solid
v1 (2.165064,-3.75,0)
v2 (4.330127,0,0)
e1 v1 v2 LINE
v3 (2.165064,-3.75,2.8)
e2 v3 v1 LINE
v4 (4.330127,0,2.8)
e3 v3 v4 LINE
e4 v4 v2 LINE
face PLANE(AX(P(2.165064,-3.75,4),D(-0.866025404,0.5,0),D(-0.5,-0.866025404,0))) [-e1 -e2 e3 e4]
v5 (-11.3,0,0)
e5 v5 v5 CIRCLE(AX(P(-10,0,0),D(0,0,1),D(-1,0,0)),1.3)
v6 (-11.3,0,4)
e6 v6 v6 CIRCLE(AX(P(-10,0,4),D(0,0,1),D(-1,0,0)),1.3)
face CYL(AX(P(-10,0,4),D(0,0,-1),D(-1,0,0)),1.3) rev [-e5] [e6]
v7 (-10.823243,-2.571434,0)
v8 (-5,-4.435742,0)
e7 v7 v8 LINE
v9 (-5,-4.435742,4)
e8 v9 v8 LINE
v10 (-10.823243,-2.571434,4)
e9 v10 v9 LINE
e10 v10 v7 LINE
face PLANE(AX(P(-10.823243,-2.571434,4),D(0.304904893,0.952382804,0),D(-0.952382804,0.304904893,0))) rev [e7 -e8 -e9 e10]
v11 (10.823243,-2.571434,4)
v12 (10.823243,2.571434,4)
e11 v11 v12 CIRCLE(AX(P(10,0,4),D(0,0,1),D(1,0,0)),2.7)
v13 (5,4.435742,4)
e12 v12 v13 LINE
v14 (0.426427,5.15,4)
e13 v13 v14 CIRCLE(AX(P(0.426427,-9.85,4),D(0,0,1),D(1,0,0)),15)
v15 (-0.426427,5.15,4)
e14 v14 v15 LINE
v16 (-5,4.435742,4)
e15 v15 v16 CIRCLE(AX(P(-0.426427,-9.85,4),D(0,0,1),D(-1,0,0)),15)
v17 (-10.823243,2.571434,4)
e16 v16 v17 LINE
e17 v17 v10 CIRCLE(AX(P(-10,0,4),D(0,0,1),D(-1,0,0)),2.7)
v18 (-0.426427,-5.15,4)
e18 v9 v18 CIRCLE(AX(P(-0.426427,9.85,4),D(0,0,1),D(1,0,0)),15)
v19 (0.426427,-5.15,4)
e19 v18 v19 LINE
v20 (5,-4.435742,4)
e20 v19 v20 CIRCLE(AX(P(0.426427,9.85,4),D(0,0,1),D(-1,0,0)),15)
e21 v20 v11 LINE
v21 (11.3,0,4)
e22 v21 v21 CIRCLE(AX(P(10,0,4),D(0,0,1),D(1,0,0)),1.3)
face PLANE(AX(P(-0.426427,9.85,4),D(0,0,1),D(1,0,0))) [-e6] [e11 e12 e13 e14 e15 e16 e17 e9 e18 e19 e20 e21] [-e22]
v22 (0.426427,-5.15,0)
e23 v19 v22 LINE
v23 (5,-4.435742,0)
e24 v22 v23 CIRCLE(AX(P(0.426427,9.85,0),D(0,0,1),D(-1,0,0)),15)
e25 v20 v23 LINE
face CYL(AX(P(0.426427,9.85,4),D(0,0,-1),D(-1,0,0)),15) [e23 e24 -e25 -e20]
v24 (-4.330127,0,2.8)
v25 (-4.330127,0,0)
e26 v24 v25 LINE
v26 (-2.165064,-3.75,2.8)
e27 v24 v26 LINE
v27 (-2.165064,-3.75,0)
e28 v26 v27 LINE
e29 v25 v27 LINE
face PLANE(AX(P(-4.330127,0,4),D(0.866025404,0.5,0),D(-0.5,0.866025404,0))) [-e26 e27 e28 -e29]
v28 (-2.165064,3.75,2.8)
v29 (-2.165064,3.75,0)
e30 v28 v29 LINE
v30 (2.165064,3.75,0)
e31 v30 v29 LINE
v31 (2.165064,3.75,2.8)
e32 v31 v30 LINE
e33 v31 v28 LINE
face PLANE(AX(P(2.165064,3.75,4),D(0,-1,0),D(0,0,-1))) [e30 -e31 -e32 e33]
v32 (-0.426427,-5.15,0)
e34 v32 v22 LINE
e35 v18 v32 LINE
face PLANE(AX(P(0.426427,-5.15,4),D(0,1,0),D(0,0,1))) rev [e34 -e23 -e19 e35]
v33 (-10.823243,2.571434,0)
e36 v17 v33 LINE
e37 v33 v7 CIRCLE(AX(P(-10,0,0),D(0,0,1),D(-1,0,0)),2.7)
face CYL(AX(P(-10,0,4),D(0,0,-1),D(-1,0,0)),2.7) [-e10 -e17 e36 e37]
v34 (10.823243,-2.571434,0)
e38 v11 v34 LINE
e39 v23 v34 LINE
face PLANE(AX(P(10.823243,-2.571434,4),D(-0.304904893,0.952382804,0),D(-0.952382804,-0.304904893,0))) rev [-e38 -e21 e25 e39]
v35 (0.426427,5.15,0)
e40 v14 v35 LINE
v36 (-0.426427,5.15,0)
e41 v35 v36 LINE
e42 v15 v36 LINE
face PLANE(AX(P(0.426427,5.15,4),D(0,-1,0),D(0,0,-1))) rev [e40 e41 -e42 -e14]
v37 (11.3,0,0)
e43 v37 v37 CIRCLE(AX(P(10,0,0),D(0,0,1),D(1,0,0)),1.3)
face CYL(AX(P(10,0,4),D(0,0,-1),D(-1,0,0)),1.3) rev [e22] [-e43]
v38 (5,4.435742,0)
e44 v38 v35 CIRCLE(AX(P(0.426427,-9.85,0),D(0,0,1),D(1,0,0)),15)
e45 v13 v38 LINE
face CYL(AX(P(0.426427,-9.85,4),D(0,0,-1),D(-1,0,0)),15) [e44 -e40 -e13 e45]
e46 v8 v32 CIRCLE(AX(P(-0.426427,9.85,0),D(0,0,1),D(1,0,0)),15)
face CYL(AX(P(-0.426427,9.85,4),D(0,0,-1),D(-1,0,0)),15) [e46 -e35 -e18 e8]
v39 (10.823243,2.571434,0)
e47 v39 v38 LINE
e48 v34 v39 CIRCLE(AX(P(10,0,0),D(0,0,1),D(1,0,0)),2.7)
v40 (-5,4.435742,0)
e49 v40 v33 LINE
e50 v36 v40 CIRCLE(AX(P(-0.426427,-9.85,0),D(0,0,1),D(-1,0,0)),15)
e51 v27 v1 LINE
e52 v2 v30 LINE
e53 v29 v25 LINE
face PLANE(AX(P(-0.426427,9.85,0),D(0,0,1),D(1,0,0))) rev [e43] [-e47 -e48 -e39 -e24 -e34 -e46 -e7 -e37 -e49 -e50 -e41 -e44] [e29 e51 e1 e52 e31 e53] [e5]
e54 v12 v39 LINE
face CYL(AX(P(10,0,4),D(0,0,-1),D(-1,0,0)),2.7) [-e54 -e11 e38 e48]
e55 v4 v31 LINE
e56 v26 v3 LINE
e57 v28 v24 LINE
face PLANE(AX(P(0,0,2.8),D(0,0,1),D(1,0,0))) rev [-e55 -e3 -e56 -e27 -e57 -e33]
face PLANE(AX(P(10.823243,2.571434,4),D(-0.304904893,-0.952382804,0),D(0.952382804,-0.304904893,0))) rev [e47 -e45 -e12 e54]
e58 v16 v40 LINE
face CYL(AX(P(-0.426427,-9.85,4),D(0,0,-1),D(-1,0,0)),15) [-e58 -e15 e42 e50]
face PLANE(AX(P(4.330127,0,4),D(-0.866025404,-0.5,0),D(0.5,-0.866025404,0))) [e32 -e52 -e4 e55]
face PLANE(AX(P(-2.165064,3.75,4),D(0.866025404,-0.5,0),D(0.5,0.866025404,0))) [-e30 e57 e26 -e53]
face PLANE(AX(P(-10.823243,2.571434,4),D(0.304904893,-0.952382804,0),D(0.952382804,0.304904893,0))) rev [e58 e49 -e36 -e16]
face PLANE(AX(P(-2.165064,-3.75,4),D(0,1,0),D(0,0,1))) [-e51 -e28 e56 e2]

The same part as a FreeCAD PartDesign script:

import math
import FreeCAD as App
import Part
import Sketcher

V = App.Vector
Q = App.Units.Quantity


def add_polygon(sketch, points):
    """Adds a closed chain of lines whose ends are joined by coincident constraints."""
    first, n = sketch.GeometryCount, len(points)
    for a, b in zip(points, points[1:] + points[:1]):
        sketch.addGeometry(Part.LineSegment(App.Vector(*a, 0), App.Vector(*b, 0)), False)
    for i in range(n):
        sketch.addConstraint(Sketcher.Constraint("Coincident", first + i, 2, first + (i + 1) % n, 1))

doc = App.newDocument("Part")
body = doc.addObject("PartDesign::Body", "Body")

sketch1 = body.newObject("Sketcher::SketchObject", "Sketch")
sketch1.AttachmentSupport = (doc.getObject("XY_Plane"), [""])
sketch1.MapMode = "FlatFace"
sketch1.addGeometry(Part.LineSegment(V(10.8, 2.6, 0), V(5, 4.4, 0)), False)
sketch1.addGeometry(Part.ArcOfCircle(Part.Circle(V(0.4, -9.8, 0), V(0, 0, 1), 15), math.radians(72.25), math.radians(90)), False)
sketch1.addGeometry(Part.LineSegment(V(0.4, 5.2, 0), V(-0.4, 5.2, 0)), False)
sketch1.addGeometry(Part.ArcOfCircle(Part.Circle(V(-0.4, -9.8, 0), V(0, 0, 1), 15), math.radians(90), math.radians(107.75)), False)
sketch1.addGeometry(Part.LineSegment(V(-5, 4.4, 0), V(-10.8, 2.6, 0)), False)
sketch1.addGeometry(Part.ArcOfCircle(Part.Circle(V(-10, 0, 0), V(0, 0, 1), 2.7), math.radians(108), math.radians(252)), False)
sketch1.addGeometry(Part.LineSegment(V(-10.8, -2.6, 0), V(-5, -4.4, 0)), False)
sketch1.addGeometry(Part.ArcOfCircle(Part.Circle(V(-0.4, 9.8, 0), V(0, 0, 1), 15), math.radians(-107.75), math.radians(-90)), False)
sketch1.addGeometry(Part.LineSegment(V(-0.4, -5.2, 0), V(0.4, -5.2, 0)), False)
sketch1.addGeometry(Part.ArcOfCircle(Part.Circle(V(0.4, 9.8, 0), V(0, 0, 1), 15), math.radians(-90), math.radians(-72.25)), False)
sketch1.addGeometry(Part.LineSegment(V(5, -4.4, 0), V(10.8, -2.6, 0)), False)
sketch1.addGeometry(Part.ArcOfCircle(Part.Circle(V(10, 0, 0), V(0, 0, 1), 2.7), math.radians(-72), math.radians(72)), False)
sketch1.addGeometry(Part.Circle(V(-10, 0, 0), V(0, 0, 1), 1.3), False)
add_polygon(sketch1, [(-2.2, 3.8), (2.2, 3.8), (4.3, 0), (2.2, -3.8), (-2.2, -3.8), (-4.3, 0)])
sketch1.addGeometry(Part.Circle(V(10, 0, 0), V(0, 0, 1), 1.3), False)
sketch1.addConstraint([
    Sketcher.Constraint("Tangent", 0, 2, 1, 1),
    Sketcher.Constraint("Tangent", 1, 2, 2, 1),
    Sketcher.Constraint("Tangent", 2, 2, 3, 1),
    Sketcher.Constraint("Tangent", 3, 2, 4, 1),
    Sketcher.Constraint("Tangent", 4, 2, 5, 1),
    Sketcher.Constraint("Tangent", 5, 2, 6, 1),
    Sketcher.Constraint("Tangent", 6, 2, 7, 1),
    Sketcher.Constraint("Tangent", 7, 2, 8, 1),
    Sketcher.Constraint("Tangent", 8, 2, 9, 1),
    Sketcher.Constraint("Tangent", 9, 2, 10, 1),
    Sketcher.Constraint("Tangent", 10, 2, 11, 1),
    Sketcher.Constraint("Tangent", 11, 2, 0, 1),
    Sketcher.Constraint("Horizontal", 2),
    Sketcher.Constraint("Horizontal", 8),
    Sketcher.Constraint("Horizontal", 13),
    Sketcher.Constraint("Horizontal", 16),
    Sketcher.Constraint("Coincident", 12, 3, 5, 3),
    Sketcher.Constraint("Coincident", 19, 3, 11, 3),
    Sketcher.Constraint("Equal", 1, 3),
    Sketcher.Constraint("Equal", 3, 7),
    Sketcher.Constraint("Equal", 7, 9),
    Sketcher.Constraint("Equal", 5, 11),
    Sketcher.Constraint("Equal", 12, 19),
    Sketcher.Constraint("Symmetric", 1, 3, 7, 3, -1, 1),
    Sketcher.Constraint("Symmetric", 5, 3, 11, 3, -1, 1),
    Sketcher.Constraint("Symmetric", 13, 2, 16, 2, -1, 1),
    Sketcher.Constraint("Symmetric", 14, 2, 17, 2, -1, 1),
    Sketcher.Constraint("Symmetric", 0, 2, 3, 2, -2),
    Sketcher.Constraint("PointOnObject", 14, 2, -1),
    Sketcher.Constraint("Parallel", 4, 10),
    Sketcher.Constraint("Parallel", 15, 18),
    Sketcher.Constraint("Vertical", 13, 2, 15, 2),
    Sketcher.Constraint("Radius", 1, Q("15 mm")),
    Sketcher.Constraint("Diameter", 12, Q("2.6 mm")),
    Sketcher.Constraint("Radius", 5, Q("2.7 mm")),
    Sketcher.Constraint("Angle", 14, Q("-60 deg")),
    Sketcher.Constraint("DistanceX", 5, 3, -1, 1, Q("10 mm")),
    Sketcher.Constraint("DistanceX", -1, 1, 0, 2, Q("5 mm")),
    Sketcher.Constraint("DistanceY", 3, 3, 7, 3, Q("19.7 mm")),
    Sketcher.Constraint("DistanceY", 13, 2, 1, 2, Q("1.4 mm")),
    Sketcher.Constraint("DistanceX", 13, 1, 13, 2, Q("4.330127 mm")),
])
pad1 = body.newObject("PartDesign::Pad", "Pad")
pad1.Profile = sketch1
pad1.Length = 4

sketch2 = body.newObject("Sketcher::SketchObject", "Sketch001")
sketch2.AttachmentSupport = (doc.getObject("XY_Plane"), [""])
sketch2.MapMode = "FlatFace"
sketch2.AttachmentOffset = App.Placement(V(0, 0, 4), App.Rotation())
sketch2.addGeometry(Part.Circle(V(0, 0, 0), V(0, 0, 1), 4.3), False)
sketch2.addConstraint([
    Sketcher.Constraint("Coincident", 0, 3, -1, 1),
    Sketcher.Constraint("Diameter", 0, Q("8.660254 mm")),
])
pad2 = body.newObject("PartDesign::Pad", "Pad001")
pad2.Profile = sketch2
pad2.Length = 1.2
pad2.Reversed = True

doc.recompute()
